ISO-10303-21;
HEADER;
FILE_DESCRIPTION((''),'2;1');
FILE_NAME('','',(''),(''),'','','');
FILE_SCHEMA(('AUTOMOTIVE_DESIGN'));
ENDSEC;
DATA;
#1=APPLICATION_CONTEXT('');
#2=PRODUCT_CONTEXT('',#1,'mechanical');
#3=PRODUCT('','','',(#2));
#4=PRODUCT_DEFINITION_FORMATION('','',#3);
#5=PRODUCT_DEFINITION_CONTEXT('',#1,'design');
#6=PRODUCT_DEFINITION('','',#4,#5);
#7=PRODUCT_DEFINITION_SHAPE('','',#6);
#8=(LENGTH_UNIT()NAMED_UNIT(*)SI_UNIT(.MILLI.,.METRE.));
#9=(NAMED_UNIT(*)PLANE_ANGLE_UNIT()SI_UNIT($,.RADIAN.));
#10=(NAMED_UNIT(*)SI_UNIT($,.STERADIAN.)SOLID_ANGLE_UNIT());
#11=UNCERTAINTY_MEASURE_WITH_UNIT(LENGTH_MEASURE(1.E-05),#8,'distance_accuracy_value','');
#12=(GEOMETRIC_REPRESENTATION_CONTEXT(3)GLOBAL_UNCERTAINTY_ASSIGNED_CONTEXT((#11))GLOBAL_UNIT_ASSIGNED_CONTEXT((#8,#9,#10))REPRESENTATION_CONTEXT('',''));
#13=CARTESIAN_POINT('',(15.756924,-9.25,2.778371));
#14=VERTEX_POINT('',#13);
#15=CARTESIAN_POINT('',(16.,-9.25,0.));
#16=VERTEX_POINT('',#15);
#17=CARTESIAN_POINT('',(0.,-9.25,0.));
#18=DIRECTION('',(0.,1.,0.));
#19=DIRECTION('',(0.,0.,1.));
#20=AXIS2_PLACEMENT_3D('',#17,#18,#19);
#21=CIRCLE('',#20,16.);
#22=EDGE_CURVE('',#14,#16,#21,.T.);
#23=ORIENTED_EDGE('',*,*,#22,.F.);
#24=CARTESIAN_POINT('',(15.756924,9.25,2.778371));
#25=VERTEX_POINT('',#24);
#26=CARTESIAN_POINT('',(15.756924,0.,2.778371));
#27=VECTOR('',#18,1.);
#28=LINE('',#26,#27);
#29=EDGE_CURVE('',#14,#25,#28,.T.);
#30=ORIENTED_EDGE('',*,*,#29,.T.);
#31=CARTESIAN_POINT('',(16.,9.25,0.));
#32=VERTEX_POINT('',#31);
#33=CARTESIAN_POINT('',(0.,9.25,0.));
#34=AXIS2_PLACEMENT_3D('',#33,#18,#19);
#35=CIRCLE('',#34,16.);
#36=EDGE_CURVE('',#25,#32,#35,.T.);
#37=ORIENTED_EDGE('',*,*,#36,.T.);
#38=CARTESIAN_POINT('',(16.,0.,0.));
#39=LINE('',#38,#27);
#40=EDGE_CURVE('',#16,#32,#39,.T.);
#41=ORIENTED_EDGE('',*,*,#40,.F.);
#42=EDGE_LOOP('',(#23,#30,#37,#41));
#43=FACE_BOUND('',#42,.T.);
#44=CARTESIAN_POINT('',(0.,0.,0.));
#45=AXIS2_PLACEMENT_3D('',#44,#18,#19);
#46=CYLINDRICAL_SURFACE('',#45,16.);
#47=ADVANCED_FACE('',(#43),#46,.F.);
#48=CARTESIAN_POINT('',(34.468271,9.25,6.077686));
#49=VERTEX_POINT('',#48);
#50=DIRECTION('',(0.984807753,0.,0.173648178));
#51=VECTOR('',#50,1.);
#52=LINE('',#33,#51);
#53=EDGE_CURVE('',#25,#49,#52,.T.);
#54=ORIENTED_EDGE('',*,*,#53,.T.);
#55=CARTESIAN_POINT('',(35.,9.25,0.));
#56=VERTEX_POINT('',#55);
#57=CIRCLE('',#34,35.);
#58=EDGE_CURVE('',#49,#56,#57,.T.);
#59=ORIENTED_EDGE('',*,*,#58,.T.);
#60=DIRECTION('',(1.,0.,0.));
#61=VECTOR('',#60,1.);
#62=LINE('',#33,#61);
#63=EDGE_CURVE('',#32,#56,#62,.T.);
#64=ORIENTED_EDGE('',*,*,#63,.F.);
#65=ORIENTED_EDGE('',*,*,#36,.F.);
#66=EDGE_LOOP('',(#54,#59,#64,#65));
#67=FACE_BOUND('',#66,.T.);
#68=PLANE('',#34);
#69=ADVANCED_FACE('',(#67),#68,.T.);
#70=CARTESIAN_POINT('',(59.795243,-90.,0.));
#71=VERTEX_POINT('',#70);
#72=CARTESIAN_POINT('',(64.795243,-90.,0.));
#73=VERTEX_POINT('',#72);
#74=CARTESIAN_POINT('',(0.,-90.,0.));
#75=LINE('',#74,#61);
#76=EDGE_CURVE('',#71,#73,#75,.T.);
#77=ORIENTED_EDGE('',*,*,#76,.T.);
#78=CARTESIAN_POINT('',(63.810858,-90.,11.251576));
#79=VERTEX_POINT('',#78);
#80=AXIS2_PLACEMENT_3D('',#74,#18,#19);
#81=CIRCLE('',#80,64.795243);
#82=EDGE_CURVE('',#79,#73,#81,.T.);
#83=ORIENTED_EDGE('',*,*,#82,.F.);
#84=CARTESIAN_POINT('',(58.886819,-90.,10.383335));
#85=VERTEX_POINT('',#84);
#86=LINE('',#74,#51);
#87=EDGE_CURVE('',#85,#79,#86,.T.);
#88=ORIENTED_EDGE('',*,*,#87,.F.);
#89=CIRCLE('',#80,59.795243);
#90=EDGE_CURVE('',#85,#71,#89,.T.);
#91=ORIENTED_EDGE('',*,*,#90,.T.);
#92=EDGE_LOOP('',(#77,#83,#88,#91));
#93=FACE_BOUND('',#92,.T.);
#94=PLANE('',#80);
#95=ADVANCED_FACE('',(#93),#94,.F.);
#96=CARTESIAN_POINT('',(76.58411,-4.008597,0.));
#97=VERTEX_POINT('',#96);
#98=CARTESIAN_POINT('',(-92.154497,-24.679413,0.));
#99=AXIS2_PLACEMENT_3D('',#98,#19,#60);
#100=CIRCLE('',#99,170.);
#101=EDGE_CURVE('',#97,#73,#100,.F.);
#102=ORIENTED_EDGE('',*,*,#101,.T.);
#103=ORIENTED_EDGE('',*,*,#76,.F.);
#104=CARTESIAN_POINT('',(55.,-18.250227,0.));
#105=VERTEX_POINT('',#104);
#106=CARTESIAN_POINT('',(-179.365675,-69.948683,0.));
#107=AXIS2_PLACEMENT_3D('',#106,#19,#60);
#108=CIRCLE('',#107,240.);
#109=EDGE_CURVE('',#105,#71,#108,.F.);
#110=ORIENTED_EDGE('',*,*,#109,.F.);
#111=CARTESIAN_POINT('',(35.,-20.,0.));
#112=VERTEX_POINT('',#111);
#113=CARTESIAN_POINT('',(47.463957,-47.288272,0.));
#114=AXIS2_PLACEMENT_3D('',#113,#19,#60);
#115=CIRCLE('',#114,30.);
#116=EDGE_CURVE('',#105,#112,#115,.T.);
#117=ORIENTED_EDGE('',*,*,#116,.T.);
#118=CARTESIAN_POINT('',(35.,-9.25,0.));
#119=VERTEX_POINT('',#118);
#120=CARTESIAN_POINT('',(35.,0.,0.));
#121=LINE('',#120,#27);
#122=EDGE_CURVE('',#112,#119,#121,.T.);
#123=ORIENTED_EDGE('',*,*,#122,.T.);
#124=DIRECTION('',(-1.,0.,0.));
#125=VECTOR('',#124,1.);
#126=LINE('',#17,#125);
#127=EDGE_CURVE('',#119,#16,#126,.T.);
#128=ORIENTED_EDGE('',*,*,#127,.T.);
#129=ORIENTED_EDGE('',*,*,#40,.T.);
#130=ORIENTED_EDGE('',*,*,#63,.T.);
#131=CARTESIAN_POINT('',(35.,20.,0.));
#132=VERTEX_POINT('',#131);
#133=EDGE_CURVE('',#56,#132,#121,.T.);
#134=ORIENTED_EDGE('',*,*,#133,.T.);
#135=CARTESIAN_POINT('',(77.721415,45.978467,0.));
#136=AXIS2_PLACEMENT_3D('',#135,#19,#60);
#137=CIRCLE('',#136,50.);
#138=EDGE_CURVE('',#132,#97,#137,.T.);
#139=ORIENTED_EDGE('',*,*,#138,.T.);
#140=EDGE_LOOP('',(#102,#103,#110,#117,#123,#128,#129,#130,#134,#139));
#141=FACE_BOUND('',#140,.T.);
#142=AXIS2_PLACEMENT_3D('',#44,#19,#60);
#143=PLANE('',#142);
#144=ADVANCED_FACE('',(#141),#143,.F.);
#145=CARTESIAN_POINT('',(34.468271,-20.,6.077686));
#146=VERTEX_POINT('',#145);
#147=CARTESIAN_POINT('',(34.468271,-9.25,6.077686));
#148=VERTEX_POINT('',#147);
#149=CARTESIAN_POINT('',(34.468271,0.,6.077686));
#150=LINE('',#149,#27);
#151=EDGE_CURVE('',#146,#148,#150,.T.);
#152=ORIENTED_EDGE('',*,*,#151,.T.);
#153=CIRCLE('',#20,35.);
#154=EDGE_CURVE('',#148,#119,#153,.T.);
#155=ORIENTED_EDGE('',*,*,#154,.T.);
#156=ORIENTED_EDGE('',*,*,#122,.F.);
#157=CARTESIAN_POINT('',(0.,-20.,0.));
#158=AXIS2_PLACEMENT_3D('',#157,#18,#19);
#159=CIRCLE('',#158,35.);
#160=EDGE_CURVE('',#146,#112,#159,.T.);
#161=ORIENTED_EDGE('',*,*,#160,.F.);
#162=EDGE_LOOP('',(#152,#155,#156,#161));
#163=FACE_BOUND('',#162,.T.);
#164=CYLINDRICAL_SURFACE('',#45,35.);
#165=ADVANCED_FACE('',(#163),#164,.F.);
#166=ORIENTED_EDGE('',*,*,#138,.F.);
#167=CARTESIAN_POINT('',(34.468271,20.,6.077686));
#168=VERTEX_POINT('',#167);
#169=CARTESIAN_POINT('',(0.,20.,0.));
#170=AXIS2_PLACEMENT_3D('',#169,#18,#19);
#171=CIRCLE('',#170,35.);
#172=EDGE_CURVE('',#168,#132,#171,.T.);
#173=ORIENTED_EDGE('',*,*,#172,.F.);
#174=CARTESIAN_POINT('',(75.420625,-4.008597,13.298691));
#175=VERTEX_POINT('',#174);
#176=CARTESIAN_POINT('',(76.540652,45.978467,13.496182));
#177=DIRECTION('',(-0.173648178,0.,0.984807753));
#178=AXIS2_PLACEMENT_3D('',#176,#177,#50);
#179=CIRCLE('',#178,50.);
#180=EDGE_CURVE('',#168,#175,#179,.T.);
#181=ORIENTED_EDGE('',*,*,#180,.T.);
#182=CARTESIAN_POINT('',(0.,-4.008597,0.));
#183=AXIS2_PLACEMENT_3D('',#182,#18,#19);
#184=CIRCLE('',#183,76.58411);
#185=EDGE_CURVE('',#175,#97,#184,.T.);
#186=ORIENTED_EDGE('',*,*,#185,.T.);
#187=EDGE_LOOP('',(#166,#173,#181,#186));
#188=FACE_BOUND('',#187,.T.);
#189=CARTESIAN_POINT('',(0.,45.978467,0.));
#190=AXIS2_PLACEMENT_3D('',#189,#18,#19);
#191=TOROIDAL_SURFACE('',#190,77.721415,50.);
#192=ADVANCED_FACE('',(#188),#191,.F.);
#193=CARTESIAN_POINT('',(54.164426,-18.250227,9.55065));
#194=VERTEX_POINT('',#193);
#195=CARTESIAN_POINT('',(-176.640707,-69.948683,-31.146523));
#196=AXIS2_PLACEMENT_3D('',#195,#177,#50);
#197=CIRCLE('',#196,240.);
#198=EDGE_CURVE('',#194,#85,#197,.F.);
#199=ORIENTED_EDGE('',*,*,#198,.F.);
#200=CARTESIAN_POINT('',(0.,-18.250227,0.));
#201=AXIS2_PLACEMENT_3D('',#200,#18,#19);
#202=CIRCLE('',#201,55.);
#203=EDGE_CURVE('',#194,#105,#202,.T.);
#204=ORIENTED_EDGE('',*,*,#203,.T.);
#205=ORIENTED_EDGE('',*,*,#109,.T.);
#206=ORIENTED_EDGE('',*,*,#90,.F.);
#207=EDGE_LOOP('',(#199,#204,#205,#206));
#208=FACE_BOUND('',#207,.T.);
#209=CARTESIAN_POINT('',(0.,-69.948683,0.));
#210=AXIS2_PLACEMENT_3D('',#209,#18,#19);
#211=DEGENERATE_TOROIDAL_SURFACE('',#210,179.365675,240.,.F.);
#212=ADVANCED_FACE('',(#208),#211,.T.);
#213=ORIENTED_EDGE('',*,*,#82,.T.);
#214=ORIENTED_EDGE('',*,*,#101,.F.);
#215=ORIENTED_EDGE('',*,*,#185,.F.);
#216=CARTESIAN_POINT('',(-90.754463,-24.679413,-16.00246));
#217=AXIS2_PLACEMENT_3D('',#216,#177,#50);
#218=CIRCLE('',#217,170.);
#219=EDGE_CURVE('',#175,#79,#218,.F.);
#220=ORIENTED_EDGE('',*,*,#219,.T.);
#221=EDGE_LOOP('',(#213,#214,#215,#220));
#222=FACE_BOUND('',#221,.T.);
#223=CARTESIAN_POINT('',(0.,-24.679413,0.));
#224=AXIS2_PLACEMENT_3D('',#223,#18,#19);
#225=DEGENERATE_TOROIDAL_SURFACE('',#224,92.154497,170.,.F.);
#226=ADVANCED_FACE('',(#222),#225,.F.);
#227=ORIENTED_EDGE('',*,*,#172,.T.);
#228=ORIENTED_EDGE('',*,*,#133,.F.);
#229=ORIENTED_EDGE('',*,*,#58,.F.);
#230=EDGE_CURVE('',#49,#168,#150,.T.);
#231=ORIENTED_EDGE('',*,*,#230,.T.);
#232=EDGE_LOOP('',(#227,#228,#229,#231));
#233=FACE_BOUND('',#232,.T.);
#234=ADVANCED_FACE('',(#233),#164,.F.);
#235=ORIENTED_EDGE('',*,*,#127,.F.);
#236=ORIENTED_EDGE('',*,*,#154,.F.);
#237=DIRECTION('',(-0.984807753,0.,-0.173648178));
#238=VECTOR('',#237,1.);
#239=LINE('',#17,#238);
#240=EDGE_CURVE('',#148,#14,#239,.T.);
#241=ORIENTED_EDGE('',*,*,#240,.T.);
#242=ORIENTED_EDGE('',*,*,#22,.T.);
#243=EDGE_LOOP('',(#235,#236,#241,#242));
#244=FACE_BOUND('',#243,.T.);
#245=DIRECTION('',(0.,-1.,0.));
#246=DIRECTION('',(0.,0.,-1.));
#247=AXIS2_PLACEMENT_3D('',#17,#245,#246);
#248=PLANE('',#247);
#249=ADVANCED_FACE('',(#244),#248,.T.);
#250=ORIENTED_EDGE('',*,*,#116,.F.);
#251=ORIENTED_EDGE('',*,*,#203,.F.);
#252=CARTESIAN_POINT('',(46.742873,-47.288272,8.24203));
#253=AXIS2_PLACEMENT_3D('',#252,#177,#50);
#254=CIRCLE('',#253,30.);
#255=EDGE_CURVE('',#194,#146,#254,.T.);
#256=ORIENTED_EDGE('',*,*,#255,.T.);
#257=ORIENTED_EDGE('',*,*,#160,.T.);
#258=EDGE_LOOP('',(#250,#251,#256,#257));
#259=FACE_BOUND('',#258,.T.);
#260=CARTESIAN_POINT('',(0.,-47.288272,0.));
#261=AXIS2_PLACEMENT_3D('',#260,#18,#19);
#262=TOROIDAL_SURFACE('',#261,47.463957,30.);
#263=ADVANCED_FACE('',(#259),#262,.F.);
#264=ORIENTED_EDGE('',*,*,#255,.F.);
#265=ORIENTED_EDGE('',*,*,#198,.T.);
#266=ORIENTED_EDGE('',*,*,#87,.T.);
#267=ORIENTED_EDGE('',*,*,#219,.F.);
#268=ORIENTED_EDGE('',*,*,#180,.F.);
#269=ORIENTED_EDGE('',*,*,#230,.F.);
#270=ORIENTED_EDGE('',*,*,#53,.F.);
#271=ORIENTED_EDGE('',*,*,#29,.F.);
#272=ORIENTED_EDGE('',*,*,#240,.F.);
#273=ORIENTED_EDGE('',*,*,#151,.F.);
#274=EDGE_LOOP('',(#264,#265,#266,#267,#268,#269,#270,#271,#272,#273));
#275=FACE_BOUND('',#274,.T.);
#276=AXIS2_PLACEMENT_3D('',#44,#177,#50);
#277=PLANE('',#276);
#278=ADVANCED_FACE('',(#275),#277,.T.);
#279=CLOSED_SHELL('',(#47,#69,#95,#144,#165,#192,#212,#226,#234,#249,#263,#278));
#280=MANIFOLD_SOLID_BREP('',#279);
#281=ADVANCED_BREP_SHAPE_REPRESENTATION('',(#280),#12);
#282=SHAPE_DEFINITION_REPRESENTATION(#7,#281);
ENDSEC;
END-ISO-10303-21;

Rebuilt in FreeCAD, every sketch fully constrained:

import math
import FreeCAD as App
import Part
import Sketcher
from FreeCAD import Vector
Q = App.Units.Quantity

doc = App.newDocument("Part")
body = doc.addObject("PartDesign::Body", "Body")

# Sketch on XY plane
sketch1 = doc.addObject("Sketcher::SketchObject", "Sketch")
body.addObject(sketch1)
sketch1.AttachmentSupport = (doc.XY_Plane, [""])
sketch1.MapMode = "FlatFace"
sketch1.addGeometry(Part.ArcOfCircle(Part.Circle(Vector(47.5, -47.3, 0), Vector(0, 0, 1), 30), math.radians(75), math.radians(115)), False)
sketch1.addGeometry(Part.ArcOfCircle(Part.Circle(Vector(-179.4, -69.9, 0), Vector(0, 0, 1), 240), math.radians(-4.79), math.radians(12.44)), False)
sketch1.addGeometry(Part.LineSegment(Vector(59.8, -90, 0), Vector(64.8, -90, 0)), False)
sketch1.addGeometry(Part.ArcOfCircle(Part.Circle(Vector(-92.2, -24.7, 0), Vector(0, 0, 1), 170), math.radians(-23), math.radians(7)), False)
sketch1.addGeometry(Part.ArcOfCircle(Part.Circle(Vector(77.7, 46, 0), Vector(0, 0, 1), 50), math.radians(-149), math.radians(-91)), False)
sketch1.addGeometry(Part.LineSegment(Vector(35, 20, 0), Vector(35, 9.2, 0)), False)
sketch1.addGeometry(Part.LineSegment(Vector(35, 9.2, 0), Vector(16, 9.2, 0)), False)
sketch1.addGeometry(Part.LineSegment(Vector(16, 9.2, 0), Vector(16, -9.2, 0)), False)
sketch1.addGeometry(Part.LineSegment(Vector(16, -9.2, 0), Vector(35, -9.2, 0)), False)
sketch1.addGeometry(Part.LineSegment(Vector(35, -9.2, 0), Vector(35, -20, 0)), False)
sketch1.addConstraint(Sketcher.Constraint("Coincident", 0, 1, 1, 2))
sketch1.addConstraint(Sketcher.Constraint("Coincident", 1, 1, 2, 1))
sketch1.addConstraint(Sketcher.Constraint("Coincident", 2, 2, 3, 1))
sketch1.addConstraint(Sketcher.Constraint("Coincident", 3, 2, 4, 2))
sketch1.addConstraint(Sketcher.Constraint("Coincident", 4, 1, 5, 1))
sketch1.addConstraint(Sketcher.Constraint("Coincident", 5, 2, 6, 1))
sketch1.addConstraint(Sketcher.Constraint("Coincident", 6, 2, 7, 1))
sketch1.addConstraint(Sketcher.Constraint("Coincident", 7, 2, 8, 1))
sketch1.addConstraint(Sketcher.Constraint("Coincident", 8, 2, 9, 1))
sketch1.addConstraint(Sketcher.Constraint("Coincident", 9, 2, 0, 2))
sketch1.addConstraint(Sketcher.Constraint("Horizontal", 2))
sketch1.addConstraint(Sketcher.Constraint("Vertical", 5))
sketch1.addConstraint(Sketcher.Constraint("Horizontal", 6))
sketch1.addConstraint(Sketcher.Constraint("Vertical", 7))
sketch1.addConstraint(Sketcher.Constraint("Horizontal", 8))
sketch1.addConstraint(Sketcher.Constraint("Vertical", 9))
sketch1.addConstraint(Sketcher.Constraint("Symmetric", 5, 2, 8, 2, -1))
sketch1.addConstraint(Sketcher.Constraint("Equal", 5, 9))
sketch1.addConstraint(Sketcher.Constraint("Radius", 0, Q("30 mm")))
sketch1.addConstraint(Sketcher.Constraint("Radius", 1, Q("240 mm")))
sketch1.addConstraint(Sketcher.Constraint("Radius", 3, Q("170 mm")))
sketch1.addConstraint(Sketcher.Constraint("Radius", 4, Q("50 mm")))
sketch1.addConstraint(Sketcher.Constraint("DistanceX", 2, 1, 2, 2, Q("5 mm")))
sketch1.addConstraint(Sketcher.Constraint("DistanceX", 6, 2, 6, 1, Q("19 mm")))
sketch1.addConstraint(Sketcher.Constraint("DistanceY", 7, 2, 7, 1, Q("18.5 mm")))
sketch1.addConstraint(Sketcher.Constraint("DistanceX", -1, 1, 0, 1, Q("55 mm")))
sketch1.addConstraint(Sketcher.Constraint("DistanceY", 1, 1, -1, 1, Q("90 mm")))
sketch1.addConstraint(Sketcher.Constraint("DistanceX", -1, 1, 4, 1, Q("35 mm")))
sketch1.addConstraint(Sketcher.Constraint("DistanceY", -1, 1, 4, 1, Q("20 mm")))
sketch1.addConstraint(Sketcher.Constraint("DistanceY", 0, 3, -1, 1, Q("47.288272 mm")))
sketch1.addConstraint(Sketcher.Constraint("DistanceX", -1, 1, 3, 2, Q("76.58411 mm")))
sketch1.addConstraint(Sketcher.Constraint("DistanceY", 1, 3, 0, 3, Q("22.660411 mm")))
sketch1.addConstraint(Sketcher.Constraint("DistanceX", 1, 3, 3, 3, Q("87.211178 mm")))
revolution = doc.addObject("PartDesign::Revolution", "Revolution")
body.addObject(revolution)
revolution.Profile = sketch1
revolution.ReferenceAxis = (sketch1, ["V_Axis"])
revolution.Angle = 10
revolution.Reversed = True

doc.recompute()
